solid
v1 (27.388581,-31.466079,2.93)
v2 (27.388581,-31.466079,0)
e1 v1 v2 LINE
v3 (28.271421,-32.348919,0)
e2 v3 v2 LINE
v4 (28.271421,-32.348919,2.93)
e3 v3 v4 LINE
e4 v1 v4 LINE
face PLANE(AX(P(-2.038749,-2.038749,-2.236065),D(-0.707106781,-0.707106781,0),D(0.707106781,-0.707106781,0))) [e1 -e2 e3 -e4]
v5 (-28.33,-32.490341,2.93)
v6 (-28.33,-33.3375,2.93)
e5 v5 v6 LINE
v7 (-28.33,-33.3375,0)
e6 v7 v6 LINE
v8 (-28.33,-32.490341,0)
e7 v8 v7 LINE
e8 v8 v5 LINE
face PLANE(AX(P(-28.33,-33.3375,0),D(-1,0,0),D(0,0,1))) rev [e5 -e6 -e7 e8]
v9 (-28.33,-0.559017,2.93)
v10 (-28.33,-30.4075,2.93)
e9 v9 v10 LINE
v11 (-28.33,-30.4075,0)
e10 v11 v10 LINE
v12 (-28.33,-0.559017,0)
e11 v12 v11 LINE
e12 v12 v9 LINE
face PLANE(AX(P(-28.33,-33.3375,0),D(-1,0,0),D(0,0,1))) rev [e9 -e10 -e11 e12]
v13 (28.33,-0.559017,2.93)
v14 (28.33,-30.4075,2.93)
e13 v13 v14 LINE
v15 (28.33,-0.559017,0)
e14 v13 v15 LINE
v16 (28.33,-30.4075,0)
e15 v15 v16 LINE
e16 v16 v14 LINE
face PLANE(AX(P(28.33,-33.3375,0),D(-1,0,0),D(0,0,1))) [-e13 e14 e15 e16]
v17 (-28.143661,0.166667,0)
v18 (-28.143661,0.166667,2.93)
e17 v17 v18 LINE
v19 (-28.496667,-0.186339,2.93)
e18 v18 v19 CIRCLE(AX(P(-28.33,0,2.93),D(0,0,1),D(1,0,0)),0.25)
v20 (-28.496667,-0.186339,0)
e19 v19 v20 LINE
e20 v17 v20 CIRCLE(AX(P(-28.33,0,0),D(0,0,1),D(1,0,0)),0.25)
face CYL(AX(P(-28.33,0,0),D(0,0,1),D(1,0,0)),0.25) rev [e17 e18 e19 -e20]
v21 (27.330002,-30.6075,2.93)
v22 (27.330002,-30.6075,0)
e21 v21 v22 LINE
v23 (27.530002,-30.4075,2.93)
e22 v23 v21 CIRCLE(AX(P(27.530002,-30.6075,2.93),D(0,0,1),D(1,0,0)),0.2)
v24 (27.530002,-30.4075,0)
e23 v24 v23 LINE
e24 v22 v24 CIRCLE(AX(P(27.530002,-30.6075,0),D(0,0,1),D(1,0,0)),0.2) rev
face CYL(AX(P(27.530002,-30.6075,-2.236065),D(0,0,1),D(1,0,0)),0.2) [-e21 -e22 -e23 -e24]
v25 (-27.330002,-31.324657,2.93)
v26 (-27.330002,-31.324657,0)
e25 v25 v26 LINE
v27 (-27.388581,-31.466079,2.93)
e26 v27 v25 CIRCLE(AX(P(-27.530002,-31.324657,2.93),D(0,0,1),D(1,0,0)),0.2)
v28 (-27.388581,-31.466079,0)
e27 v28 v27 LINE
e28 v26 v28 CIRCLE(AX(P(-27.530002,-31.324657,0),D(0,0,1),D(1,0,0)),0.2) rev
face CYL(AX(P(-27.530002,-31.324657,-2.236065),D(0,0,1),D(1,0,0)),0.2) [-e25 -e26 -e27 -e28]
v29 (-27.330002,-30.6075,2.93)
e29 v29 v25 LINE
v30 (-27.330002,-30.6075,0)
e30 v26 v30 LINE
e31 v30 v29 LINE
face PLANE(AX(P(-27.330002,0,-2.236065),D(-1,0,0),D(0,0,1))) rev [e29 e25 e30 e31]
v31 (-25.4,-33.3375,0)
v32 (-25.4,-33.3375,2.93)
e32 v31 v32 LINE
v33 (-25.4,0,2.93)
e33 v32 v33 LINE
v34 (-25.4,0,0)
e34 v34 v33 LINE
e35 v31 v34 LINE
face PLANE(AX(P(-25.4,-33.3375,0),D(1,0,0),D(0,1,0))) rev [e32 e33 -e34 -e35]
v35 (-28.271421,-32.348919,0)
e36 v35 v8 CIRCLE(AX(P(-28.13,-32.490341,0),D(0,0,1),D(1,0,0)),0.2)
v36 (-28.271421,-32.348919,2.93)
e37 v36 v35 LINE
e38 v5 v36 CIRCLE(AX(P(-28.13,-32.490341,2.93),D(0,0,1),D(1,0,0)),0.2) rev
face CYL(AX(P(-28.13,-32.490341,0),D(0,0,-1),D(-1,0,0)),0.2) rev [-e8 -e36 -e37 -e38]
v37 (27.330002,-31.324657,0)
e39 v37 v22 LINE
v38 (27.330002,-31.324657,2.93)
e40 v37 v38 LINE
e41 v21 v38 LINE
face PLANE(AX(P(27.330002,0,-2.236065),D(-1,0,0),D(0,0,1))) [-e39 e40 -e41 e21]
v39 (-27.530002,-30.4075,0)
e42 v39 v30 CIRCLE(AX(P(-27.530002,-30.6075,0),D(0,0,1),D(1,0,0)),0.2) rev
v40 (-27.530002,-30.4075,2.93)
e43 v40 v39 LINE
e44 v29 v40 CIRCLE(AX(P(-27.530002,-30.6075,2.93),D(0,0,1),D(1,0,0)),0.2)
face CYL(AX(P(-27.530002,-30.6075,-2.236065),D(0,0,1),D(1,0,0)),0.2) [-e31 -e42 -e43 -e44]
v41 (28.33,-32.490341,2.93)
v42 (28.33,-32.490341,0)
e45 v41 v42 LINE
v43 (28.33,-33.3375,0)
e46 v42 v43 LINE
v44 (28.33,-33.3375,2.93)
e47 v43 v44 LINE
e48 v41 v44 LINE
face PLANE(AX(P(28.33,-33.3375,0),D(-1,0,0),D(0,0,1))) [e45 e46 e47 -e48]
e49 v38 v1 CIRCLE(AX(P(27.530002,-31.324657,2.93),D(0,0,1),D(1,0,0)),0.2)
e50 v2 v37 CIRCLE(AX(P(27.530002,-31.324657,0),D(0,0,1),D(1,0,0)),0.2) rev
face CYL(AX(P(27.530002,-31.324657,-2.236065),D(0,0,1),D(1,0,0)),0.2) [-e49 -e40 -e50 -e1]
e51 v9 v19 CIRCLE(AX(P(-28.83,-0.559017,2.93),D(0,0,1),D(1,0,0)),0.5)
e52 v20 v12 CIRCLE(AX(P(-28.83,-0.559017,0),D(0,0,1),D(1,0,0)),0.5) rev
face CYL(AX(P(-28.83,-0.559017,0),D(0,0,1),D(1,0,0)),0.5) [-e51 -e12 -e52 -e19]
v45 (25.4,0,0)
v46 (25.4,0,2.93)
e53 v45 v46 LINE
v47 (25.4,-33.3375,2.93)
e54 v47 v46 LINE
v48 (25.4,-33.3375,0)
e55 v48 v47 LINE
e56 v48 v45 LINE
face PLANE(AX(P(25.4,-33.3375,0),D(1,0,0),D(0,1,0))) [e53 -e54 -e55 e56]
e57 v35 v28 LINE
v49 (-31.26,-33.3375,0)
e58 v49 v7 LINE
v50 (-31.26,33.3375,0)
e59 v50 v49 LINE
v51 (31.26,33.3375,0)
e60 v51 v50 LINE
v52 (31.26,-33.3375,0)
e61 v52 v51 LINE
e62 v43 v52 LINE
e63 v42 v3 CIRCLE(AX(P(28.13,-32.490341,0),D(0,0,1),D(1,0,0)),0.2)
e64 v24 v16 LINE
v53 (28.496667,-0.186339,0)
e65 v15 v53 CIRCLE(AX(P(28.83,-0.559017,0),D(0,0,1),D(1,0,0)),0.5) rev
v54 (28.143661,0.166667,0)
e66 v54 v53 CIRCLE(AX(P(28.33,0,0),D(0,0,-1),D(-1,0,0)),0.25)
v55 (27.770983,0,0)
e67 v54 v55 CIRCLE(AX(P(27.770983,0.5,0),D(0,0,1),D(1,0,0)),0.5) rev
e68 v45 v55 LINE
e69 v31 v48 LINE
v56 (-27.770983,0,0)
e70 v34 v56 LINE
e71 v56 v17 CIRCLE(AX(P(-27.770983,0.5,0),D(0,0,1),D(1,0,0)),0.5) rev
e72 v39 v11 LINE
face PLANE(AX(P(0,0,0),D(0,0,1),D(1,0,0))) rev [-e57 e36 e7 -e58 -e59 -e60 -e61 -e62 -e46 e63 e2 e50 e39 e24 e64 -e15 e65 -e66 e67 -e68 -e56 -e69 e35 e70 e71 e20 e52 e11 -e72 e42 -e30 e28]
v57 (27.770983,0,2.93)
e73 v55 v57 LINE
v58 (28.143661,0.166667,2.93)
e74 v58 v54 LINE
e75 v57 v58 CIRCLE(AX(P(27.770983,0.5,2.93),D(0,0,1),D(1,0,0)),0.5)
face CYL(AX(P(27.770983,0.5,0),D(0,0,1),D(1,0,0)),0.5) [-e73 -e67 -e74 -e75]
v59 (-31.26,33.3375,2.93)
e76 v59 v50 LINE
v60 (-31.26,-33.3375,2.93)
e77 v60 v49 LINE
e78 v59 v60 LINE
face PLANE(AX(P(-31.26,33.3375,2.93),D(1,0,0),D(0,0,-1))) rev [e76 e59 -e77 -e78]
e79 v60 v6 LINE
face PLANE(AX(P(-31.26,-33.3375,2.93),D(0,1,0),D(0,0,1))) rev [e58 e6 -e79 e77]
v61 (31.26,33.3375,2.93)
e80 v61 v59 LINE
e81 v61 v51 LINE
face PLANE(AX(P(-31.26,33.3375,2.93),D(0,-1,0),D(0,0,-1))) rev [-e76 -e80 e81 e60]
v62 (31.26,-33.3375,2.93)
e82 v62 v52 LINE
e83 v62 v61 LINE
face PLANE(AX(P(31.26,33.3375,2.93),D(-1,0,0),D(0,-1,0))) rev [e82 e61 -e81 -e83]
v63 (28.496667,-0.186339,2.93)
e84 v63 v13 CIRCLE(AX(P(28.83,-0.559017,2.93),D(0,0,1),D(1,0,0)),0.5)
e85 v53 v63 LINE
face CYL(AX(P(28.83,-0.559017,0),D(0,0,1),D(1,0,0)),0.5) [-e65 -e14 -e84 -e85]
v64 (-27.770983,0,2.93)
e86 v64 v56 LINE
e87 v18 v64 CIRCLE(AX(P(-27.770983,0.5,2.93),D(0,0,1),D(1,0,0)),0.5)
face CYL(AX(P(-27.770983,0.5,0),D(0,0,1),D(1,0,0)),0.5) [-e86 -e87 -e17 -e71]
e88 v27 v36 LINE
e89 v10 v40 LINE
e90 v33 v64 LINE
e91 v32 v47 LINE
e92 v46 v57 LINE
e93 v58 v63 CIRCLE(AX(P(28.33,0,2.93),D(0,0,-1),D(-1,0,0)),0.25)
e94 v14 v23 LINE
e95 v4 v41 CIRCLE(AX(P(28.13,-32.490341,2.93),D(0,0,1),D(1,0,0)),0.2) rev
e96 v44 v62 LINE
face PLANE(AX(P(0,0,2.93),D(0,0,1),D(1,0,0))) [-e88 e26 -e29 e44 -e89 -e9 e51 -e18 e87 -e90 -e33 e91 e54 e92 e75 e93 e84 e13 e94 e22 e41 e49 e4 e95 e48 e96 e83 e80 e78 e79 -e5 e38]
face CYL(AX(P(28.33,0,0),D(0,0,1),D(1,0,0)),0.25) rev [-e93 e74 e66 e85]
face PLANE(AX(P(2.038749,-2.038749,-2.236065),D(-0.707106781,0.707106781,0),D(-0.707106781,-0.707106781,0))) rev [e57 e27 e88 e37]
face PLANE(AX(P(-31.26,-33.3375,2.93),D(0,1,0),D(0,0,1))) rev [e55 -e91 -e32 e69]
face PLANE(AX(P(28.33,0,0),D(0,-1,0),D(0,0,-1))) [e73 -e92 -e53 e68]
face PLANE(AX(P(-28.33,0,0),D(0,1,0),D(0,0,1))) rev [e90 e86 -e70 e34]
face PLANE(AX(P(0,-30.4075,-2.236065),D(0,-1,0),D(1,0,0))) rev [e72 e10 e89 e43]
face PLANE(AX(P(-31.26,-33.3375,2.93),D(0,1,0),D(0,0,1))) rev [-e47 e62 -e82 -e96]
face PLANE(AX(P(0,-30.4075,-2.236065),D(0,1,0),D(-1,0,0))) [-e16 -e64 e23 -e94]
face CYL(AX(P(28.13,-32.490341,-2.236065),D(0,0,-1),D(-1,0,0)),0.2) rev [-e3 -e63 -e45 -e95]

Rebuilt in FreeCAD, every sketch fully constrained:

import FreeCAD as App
import Part
import Sketcher

V = App.Vector
Q = App.Units.Quantity


def edges_at(feature, points):
    """Names of the edges that pass closest to the given points."""
    edges = feature.Shape.Edges
    near = lambda p: min(range(len(edges)), key=lambda i: edges[i].distToShape(Part.Vertex(*p))[0])
    return sorted({f"Edge{near(p) + 1}" for p in points})


def add_polygon(sketch, points):
    """Adds a closed chain of lines whose ends are joined by coincident constraints."""
    first, n = sketch.GeometryCount, len(points)
    for a, b in zip(points, points[1:] + points[:1]):
        sketch.addGeometry(Part.LineSegment(App.Vector(*a, 0), App.Vector(*b, 0)), False)
    for i in range(n):
        sketch.addConstraint(Sketcher.Constraint("Coincident", first + i, 2, first + (i + 1) % n, 1))

doc = App.newDocument("Part")
body = doc.addObject("PartDesign::Body", "Body")

sketch1 = body.newObject("Sketcher::SketchObject", "Sketch")
sketch1.AttachmentSupport = (doc.getObject("XY_Plane"), [""])
sketch1.MapMode = "FlatFace"
add_polygon(sketch1, [(-31, 33), (-31, -33), (31, -33), (31, 33)])
sketch1.addConstraint(Sketcher.Constraint("Vertical", 0))
sketch1.addConstraint(Sketcher.Constraint("Horizontal", 1))
sketch1.addConstraint(Sketcher.Constraint("Vertical", 2))
sketch1.addConstraint(Sketcher.Constraint("Horizontal", 3))
sketch1.addConstraint(Sketcher.Constraint("Symmetric", 0, 2, 2, 2, -1, 1))
sketch1.addConstraint(Sketcher.Constraint("DistanceX", 1, 1, 1, 2, Q("62.52 mm")))
sketch1.addConstraint(Sketcher.Constraint("DistanceY", 0, 2, 0, 1, Q("66.675 mm")))
pad1 = body.newObject("PartDesign::Pad", "Pad")
pad1.Profile = sketch1
pad1.Length = 2.93

sketch2 = body.newObject("Sketcher::SketchObject", "Sketch001")
sketch2.AttachmentSupport = (doc.getObject("XY_Plane"), [""])
sketch2.MapMode = "FlatFace"
sketch2.AttachmentOffset = App.Placement(V(0, 0, 2.93), App.Rotation())
add_polygon(sketch2, [(-28.3, 0), (-28.3, -33.3), (-25.4, -33.3), (-25.4, 0)])
sketch2.addConstraint(Sketcher.Constraint("Vertical", 0))
sketch2.addConstraint(Sketcher.Constraint("Horizontal", 1))
sketch2.addConstraint(Sketcher.Constraint("Vertical", 2))
sketch2.addConstraint(Sketcher.Constraint("Horizontal", 3))
sketch2.addConstraint(Sketcher.Constraint("PointOnObject", 2, 2, -1))
sketch2.addConstraint(Sketcher.Constraint("DistanceX", 1, 1, 1, 2, Q("2.93 mm")))
sketch2.addConstraint(Sketcher.Constraint("DistanceX", 1, 2, -1, 1, Q("25.4 mm")))
sketch2.addConstraint(Sketcher.Constraint("DistanceY", 0, 2, 0, 1, Q("33.3375 mm")))
pocket1 = body.newObject("PartDesign::Pocket", "Pocket")
pocket1.Profile = sketch2
pocket1.Type = "ThroughAll"

sketch3 = body.newObject("Sketcher::SketchObject", "Sketch002")
sketch3.AttachmentSupport = (doc.getObject("XY_Plane"), [""])
sketch3.MapMode = "FlatFace"
sketch3.AttachmentOffset = App.Placement(V(0, 0, 2.93), App.Rotation())
add_polygon(sketch3, [(-27.3, -30.4), (-28.3, -30.4), (-28.3, -32.4), (-27.3, -31.4)])
sketch3.addConstraint(Sketcher.Constraint("Horizontal", 0))
sketch3.addConstraint(Sketcher.Constraint("Vertical", 1))
sketch3.addConstraint(Sketcher.Constraint("Vertical", 3))
sketch3.addConstraint(Sketcher.Constraint("Equal", 0, 3))
sketch3.addConstraint(Sketcher.Constraint("DistanceX", 0, 2, 0, 1, Q("0.999998 mm")))
sketch3.addConstraint(Sketcher.Constraint("Angle", 2, Q("45 deg")))
sketch3.addConstraint(Sketcher.Constraint("DistanceX", 0, 2, -1, 1, Q("28.33 mm")))
sketch3.addConstraint(Sketcher.Constraint("DistanceY", 0, 2, -1, 1, Q("30.4075 mm")))
pad2 = body.newObject("PartDesign::Pad", "Pad001")
pad2.Profile = sketch3
pad2.Length = 2.93
pad2.Reversed = True
doc.recompute()

fillet = body.newObject("PartDesign::Fillet", "Fillet")
fillet.Base = (pad2, edges_at(pad2, [(-27.33, -30.408, 1.465), (-28.33, -32.407, 1.465), (-27.33, -31.408, 1.465)]))
fillet.Radius = 0.2

sketch4 = body.newObject("Sketcher::SketchObject", "Sketch003")
sketch4.AttachmentSupport = (doc.getObject("XY_Plane"), [""])
sketch4.MapMode = "FlatFace"
sketch4.AttachmentOffset = App.Placement(V(0, 0, 2.93), App.Rotation())
sketch4.addGeometry(Part.Circle(V(-28.33, 0, 0), V(0, 0, 1), 0.25), False)
sketch4.addConstraint(Sketcher.Constraint("PointOnObject", 0, 3, -1))
sketch4.addConstraint(Sketcher.Constraint("Diameter", 0, Q("0.5 mm")))
sketch4.addConstraint(Sketcher.Constraint("DistanceX", 0, 3, -1, 1, Q("28.33 mm")))
pocket2 = body.newObject("PartDesign::Pocket", "Pocket001")
pocket2.Profile = sketch4
pocket2.Type = "ThroughAll"
doc.recompute()

fillet2 = body.newObject("PartDesign::Fillet", "Fillet001")
fillet2.Base = (pocket2, edges_at(pocket2, [(-28.08, 0, 1.465), (-28.33, -0.25, 1.465)]))
fillet2.Radius = 0.5
doc.recompute()

mirrored = body.newObject("PartDesign::Mirrored", "Mirrored")
mirrored.Originals = [pocket1, pad2, pocket2]
mirrored.MirrorPlane = (doc.getObject("YZ_Plane"), [""])
body.Tip = mirrored
doc.recompute()

fillet3 = body.newObject("PartDesign::Fillet", "Fillet002")
fillet3.Base = (mirrored, edges_at(mirrored, [(27.33, -30.408, 1.465), (28.33, -32.407, 1.465), (27.33, -31.408, 1.465)]))
fillet3.Radius = 0.2
doc.recompute()

fillet4 = body.newObject("PartDesign::Fillet", "Fillet003")
fillet4.Base = (fillet3, edges_at(fillet3, [(28.08, 0, 1.465), (28.33, -0.25, 1.465)]))
fillet4.Radius = 0.5

doc.recompute()
